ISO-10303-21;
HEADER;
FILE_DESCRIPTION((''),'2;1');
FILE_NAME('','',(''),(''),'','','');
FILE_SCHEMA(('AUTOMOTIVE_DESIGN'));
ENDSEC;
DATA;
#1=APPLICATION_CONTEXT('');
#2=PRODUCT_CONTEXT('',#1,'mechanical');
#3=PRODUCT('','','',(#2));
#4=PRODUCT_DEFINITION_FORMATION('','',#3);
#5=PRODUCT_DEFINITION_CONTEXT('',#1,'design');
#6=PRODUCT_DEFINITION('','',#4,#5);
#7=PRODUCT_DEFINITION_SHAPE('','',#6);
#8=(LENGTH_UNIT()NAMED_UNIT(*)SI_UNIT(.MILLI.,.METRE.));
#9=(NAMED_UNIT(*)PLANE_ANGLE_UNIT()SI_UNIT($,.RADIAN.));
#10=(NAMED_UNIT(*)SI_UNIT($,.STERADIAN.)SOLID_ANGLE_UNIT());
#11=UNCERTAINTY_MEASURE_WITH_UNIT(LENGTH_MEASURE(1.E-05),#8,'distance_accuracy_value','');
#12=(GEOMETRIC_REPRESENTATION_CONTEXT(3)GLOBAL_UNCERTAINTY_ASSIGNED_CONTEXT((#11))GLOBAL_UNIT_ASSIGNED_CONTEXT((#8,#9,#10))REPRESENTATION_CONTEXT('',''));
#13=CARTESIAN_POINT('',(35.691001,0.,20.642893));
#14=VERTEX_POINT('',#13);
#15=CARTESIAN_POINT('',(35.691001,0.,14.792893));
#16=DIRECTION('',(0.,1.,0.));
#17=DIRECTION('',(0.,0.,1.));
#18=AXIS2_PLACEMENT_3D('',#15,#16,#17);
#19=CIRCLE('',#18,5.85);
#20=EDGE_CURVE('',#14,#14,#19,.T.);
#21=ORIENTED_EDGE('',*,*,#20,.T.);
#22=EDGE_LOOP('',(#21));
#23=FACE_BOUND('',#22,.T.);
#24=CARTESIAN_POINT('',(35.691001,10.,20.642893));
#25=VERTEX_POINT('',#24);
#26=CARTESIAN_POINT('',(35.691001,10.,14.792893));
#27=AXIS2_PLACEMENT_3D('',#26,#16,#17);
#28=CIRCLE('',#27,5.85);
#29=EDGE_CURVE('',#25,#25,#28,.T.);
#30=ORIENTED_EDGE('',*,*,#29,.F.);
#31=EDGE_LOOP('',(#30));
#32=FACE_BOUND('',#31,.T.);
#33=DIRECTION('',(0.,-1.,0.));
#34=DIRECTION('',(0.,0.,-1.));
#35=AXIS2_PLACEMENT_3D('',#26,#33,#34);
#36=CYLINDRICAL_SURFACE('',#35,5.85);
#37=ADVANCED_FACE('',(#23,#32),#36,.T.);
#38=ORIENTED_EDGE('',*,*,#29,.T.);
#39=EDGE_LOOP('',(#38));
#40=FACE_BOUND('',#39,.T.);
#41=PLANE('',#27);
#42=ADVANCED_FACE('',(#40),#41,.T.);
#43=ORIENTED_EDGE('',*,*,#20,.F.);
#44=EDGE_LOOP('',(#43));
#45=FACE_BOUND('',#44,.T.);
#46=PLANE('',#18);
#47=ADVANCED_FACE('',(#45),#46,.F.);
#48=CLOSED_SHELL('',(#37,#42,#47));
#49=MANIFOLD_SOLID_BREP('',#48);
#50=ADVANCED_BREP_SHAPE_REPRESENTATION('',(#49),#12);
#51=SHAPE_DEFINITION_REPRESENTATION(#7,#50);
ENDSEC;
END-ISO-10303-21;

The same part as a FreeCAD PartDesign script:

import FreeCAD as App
import Part
import Sketcher

V = App.Vector
Q = App.Units.Quantity

doc = App.newDocument("Part")
body = doc.addObject("PartDesign::Body", "Body")

# Sketch on XZ plane
sketch1 = body.newObject("Sketcher::SketchObject", "Sketch")
sketch1.AttachmentSupport = (doc.getObject("XZ_Plane"), [""])
sketch1.MapMode = "FlatFace"
sketch1.addGeometry(Part.Circle(V(35.691001, 14.792893, 0), V(0, 0, 1), 5.85), False)
sketch1.addConstraint([
    Sketcher.Constraint("Diameter", 0, Q("11.7 mm")),
    Sketcher.Constraint("DistanceX", -1, 1, 0, 3, Q("35.691001 mm")),
    Sketcher.Constraint("DistanceY", -1, 1, 0, 3, Q("14.792893 mm")),
])
pad1 = body.newObject("PartDesign::Pad", "Pad")
pad1.Profile = sketch1
pad1.Length = 10
pad1.Reversed = True

doc.recompute()
